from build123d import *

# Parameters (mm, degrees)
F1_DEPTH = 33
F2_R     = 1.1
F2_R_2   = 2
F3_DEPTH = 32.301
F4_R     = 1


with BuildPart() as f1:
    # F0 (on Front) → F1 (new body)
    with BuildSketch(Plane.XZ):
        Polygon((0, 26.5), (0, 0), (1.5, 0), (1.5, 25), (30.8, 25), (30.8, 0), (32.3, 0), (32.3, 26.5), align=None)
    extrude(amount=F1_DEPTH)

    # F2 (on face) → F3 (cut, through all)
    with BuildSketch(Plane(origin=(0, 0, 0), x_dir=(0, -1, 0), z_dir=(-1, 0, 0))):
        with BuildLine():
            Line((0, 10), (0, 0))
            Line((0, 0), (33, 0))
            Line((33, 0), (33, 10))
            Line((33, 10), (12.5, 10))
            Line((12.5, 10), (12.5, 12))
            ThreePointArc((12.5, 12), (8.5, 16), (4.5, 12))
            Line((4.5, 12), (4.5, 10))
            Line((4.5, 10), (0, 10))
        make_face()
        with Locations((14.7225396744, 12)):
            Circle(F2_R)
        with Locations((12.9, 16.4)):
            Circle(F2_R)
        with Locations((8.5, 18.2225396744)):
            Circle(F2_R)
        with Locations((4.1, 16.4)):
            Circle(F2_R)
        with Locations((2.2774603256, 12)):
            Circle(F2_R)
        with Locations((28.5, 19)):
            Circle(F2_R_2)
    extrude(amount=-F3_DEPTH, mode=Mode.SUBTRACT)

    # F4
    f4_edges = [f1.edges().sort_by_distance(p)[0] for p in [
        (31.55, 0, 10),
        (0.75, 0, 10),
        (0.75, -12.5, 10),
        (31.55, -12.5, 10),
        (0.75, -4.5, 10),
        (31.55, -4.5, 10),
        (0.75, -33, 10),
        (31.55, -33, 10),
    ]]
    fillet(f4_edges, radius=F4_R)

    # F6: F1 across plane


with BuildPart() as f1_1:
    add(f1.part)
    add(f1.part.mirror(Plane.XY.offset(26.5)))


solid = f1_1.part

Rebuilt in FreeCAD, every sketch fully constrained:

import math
import FreeCAD as App
import Part
import Sketcher

V = App.Vector
Q = App.Units.Quantity


def edges_at(feature, points):
    """Names of the edges that pass closest to the given points."""
    edges = feature.Shape.Edges
    near = lambda p: min(range(len(edges)), key=lambda i: edges[i].distToShape(Part.Vertex(*p))[0])
    return sorted({f"Edge{near(p) + 1}" for p in points})

doc = App.newDocument("Part")
body = doc.addObject("PartDesign::Body", "Body")

# Sketch on XZ plane
sketch1 = doc.addObject("Sketcher::SketchObject", "Sketch")
body.addObject(sketch1)
sketch1.AttachmentSupport = (doc.XZ_Plane, [""])
sketch1.MapMode = "FlatFace"
sketch1.addGeometry([
    Part.LineSegment(V(0, 26.5, 0), V(0, 0, 0)),  # 0
    Part.LineSegment(V(0, 0, 0), V(1.5, 0, 0)),  # 1
    Part.LineSegment(V(1.5, 0, 0), V(1.5, 25, 0)),  # 2
    Part.LineSegment(V(1.5, 25, 0), V(30.8, 25, 0)),  # 3
    Part.LineSegment(V(30.8, 25, 0), V(30.8, 0, 0)),  # 4
    Part.LineSegment(V(30.8, 0, 0), V(32.3, 0, 0)),  # 5
    Part.LineSegment(V(32.3, 0, 0), V(32.3, 26.5, 0)),  # 6
    Part.LineSegment(V(32.3, 26.5, 0), V(0, 26.5, 0)),  # 7
], False)
sketch1.addConstraint([
    Sketcher.Constraint("Coincident", 0, 2, 1, 1),
    Sketcher.Constraint("Coincident", 1, 2, 2, 1),
    Sketcher.Constraint("Coincident", 2, 2, 3, 1),
    Sketcher.Constraint("Coincident", 3, 2, 4, 1),
    Sketcher.Constraint("Coincident", 4, 2, 5, 1),
    Sketcher.Constraint("Coincident", 5, 2, 6, 1),
    Sketcher.Constraint("Coincident", 6, 2, 7, 1),
    Sketcher.Constraint("Coincident", 7, 2, 0, 1),
    Sketcher.Constraint("Vertical", 0),
    Sketcher.Constraint("Horizontal", 1),
    Sketcher.Constraint("Vertical", 2),
    Sketcher.Constraint("Horizontal", 3),
    Sketcher.Constraint("Vertical", 4),
    Sketcher.Constraint("Horizontal", 5),
    Sketcher.Constraint("Vertical", 6),
    Sketcher.Constraint("Horizontal", 7),
    Sketcher.Constraint("Coincident", 0, 2, -1, 1),
    Sketcher.Constraint("PointOnObject", 4, 2, -1),
    Sketcher.Constraint("Equal", 1, 5),
    Sketcher.Constraint("DistanceY", 2, 1, 2, 2, Q("25 mm")),
    Sketcher.Constraint("DistanceX", 1, 1, 1, 2, Q("1.5 mm")),
    Sketcher.Constraint("DistanceX", 3, 1, 3, 2, Q("29.3 mm")),
    Sketcher.Constraint("DistanceY", 0, 2, 0, 1, Q("26.5 mm")),
])
pad1 = doc.addObject("PartDesign::Pad", "Pad")
body.addObject(pad1)
pad1.Profile = sketch1
pad1.Length = 33

# Sketch on YZ plane
sketch2 = doc.addObject("Sketcher::SketchObject", "Sketch001")
body.addObject(sketch2)
sketch2.AttachmentSupport = (doc.YZ_Plane, [""])
sketch2.MapMode = "FlatFace"
sketch2.addGeometry([
    Part.LineSegment(V(0, 10, 0), V(0, 0, 0)),  # 0
    Part.LineSegment(V(0, 0, 0), V(-33, 0, 0)),  # 1
    Part.LineSegment(V(-33, 0, 0), V(-33, 10, 0)),  # 2
    Part.LineSegment(V(-33, 10, 0), V(-12.5, 10, 0)),  # 3
    Part.LineSegment(V(-12.5, 10, 0), V(-12.5, 12, 0)),  # 4
    Part.ArcOfCircle(Part.Circle(V(-8.5, 12, 0), V(0, 0, 1), 4), math.radians(0), math.radians(180)),  # 5
    Part.LineSegment(V(-4.5, 12, 0), V(-4.5, 10, 0)),  # 6
    Part.LineSegment(V(-4.5, 10, 0), V(0, 10, 0)),  # 7
    Part.Circle(V(-14.72254, 12, 0), V(0, 0, 1), 1.1),  # 8
    Part.Circle(V(-12.9, 16.4, 0), V(0, 0, 1), 1.1),  # 9
    Part.Circle(V(-8.5, 18.22254, 0), V(0, 0, 1), 1.1),  # 10
    Part.Circle(V(-4.1, 16.4, 0), V(0, 0, 1), 1.1),  # 11
    Part.Circle(V(-2.27746, 12, 0), V(0, 0, 1), 1.1),  # 12
    Part.Circle(V(-28.5, 19, 0), V(0, 0, 1), 2),  # 13
], False)
sketch2.addConstraint([
    Sketcher.Constraint("Coincident", 0, 2, 1, 1),
    Sketcher.Constraint("Coincident", 1, 2, 2, 1),
    Sketcher.Constraint("Coincident", 2, 2, 3, 1),
    Sketcher.Constraint("Coincident", 3, 2, 4, 1),
    Sketcher.Constraint("Tangent", 4, 2, 5, 2),
    Sketcher.Constraint("Tangent", 5, 1, 6, 1),
    Sketcher.Constraint("Coincident", 6, 2, 7, 1),
    Sketcher.Constraint("Coincident", 7, 2, 0, 1),
    Sketcher.Constraint("Vertical", 0),
    Sketcher.Constraint("Horizontal", 1),
    Sketcher.Constraint("Vertical", 2),
    Sketcher.Constraint("Horizontal", 3),
    Sketcher.Constraint("Vertical", 4),
    Sketcher.Constraint("Vertical", 6),
    Sketcher.Constraint("Horizontal", 7),
    Sketcher.Constraint("Coincident", 0, 2, -1, 1),
    Sketcher.Constraint("Equal", 8, 9),
    Sketcher.Constraint("Equal", 9, 10),
    Sketcher.Constraint("Equal", 10, 11),
    Sketcher.Constraint("Equal", 11, 12),
    Sketcher.Constraint("Horizontal", 5, 3, 8, 3),
    Sketcher.Constraint("Horizontal", 9, 3, 11, 3),
    Sketcher.Constraint("Horizontal", 8, 3, 12, 3),
    Sketcher.Constraint("Horizontal", 3, 2, 6, 2),
    Sketcher.Constraint("Vertical", 5, 3, 10, 3),
    Sketcher.Constraint("Diameter", 13, Q("4 mm")),
    Sketcher.Constraint("Radius", 5, Q("4 mm")),
    Sketcher.Constraint("Diameter", 8, Q("2.2 mm")),
    Sketcher.Constraint("DistanceX", 1, 2, 1, 1, Q("33 mm")),
    Sketcher.Constraint("DistanceY", 0, 2, 0, 1, Q("10 mm")),
    Sketcher.Constraint("DistanceY", 4, 1, 4, 2, Q("2 mm")),
    Sketcher.Constraint("DistanceX", 3, 1, 3, 2, Q("20.5 mm")),
    Sketcher.Constraint("DistanceY", -1, 1, 13, 3, Q("19 mm")),
    Sketcher.Constraint("DistanceX", 13, 3, 10, 3, Q("20 mm")),
    Sketcher.Constraint("DistanceX", 9, 3, -1, 1, Q("12.9 mm")),
    Sketcher.Constraint("DistanceY", -1, 1, 9, 3, Q("16.4 mm")),
    Sketcher.Constraint("DistanceX", 11, 3, -1, 1, Q("4.1 mm")),
    Sketcher.Constraint("DistanceX", 8, 3, -1, 1, Q("14.72254 mm")),
    Sketcher.Constraint("DistanceY", -1, 1, 10, 3, Q("18.22254 mm")),
    Sketcher.Constraint("DistanceX", 12, 3, -1, 1, Q("2.27746 mm")),
])
pocket1 = doc.addObject("PartDesign::Pocket", "Pocket")
body.addObject(pocket1)
pocket1.Profile = sketch2
pocket1.Type = "ThroughAll"
pocket1.Reversed = True
doc.recompute()

fillet = doc.addObject("PartDesign::Fillet", "Fillet")
body.addObject(fillet)
fillet.Base = (pocket1, edges_at(pocket1, [
    (31.55, 0, 10),
    (0.75, 0, 10),
    (0.75, -12.5, 10),
    (31.55, -12.5, 10),
    (0.75, -4.5, 10),
    (31.55, -4.5, 10),
    (0.75, -33, 10),
    (31.55, -33, 10),
]))
fillet.Radius = 1
body2 = doc.addObject("PartDesign::Body", "Body001")
doc.recompute()

body2.BaseFeature = body
doc.recompute()

mirroring = doc.addObject("Part::Mirroring", "Mirroring")
mirroring.Source = body
mirroring.Base = V(0, 0, 26.5)
mirroring.Normal = V(0, 0, 1)
body3 = doc.addObject("PartDesign::Body", "Body002")
body3.BaseFeature = mirroring
boolean = doc.addObject("PartDesign::Boolean", "Boolean")
body2.addObject(boolean)
boolean.Type = "Fuse"
boolean.addObjects([body3])
doc.recompute()
mirroring.Visibility = False

doc.recompute()
